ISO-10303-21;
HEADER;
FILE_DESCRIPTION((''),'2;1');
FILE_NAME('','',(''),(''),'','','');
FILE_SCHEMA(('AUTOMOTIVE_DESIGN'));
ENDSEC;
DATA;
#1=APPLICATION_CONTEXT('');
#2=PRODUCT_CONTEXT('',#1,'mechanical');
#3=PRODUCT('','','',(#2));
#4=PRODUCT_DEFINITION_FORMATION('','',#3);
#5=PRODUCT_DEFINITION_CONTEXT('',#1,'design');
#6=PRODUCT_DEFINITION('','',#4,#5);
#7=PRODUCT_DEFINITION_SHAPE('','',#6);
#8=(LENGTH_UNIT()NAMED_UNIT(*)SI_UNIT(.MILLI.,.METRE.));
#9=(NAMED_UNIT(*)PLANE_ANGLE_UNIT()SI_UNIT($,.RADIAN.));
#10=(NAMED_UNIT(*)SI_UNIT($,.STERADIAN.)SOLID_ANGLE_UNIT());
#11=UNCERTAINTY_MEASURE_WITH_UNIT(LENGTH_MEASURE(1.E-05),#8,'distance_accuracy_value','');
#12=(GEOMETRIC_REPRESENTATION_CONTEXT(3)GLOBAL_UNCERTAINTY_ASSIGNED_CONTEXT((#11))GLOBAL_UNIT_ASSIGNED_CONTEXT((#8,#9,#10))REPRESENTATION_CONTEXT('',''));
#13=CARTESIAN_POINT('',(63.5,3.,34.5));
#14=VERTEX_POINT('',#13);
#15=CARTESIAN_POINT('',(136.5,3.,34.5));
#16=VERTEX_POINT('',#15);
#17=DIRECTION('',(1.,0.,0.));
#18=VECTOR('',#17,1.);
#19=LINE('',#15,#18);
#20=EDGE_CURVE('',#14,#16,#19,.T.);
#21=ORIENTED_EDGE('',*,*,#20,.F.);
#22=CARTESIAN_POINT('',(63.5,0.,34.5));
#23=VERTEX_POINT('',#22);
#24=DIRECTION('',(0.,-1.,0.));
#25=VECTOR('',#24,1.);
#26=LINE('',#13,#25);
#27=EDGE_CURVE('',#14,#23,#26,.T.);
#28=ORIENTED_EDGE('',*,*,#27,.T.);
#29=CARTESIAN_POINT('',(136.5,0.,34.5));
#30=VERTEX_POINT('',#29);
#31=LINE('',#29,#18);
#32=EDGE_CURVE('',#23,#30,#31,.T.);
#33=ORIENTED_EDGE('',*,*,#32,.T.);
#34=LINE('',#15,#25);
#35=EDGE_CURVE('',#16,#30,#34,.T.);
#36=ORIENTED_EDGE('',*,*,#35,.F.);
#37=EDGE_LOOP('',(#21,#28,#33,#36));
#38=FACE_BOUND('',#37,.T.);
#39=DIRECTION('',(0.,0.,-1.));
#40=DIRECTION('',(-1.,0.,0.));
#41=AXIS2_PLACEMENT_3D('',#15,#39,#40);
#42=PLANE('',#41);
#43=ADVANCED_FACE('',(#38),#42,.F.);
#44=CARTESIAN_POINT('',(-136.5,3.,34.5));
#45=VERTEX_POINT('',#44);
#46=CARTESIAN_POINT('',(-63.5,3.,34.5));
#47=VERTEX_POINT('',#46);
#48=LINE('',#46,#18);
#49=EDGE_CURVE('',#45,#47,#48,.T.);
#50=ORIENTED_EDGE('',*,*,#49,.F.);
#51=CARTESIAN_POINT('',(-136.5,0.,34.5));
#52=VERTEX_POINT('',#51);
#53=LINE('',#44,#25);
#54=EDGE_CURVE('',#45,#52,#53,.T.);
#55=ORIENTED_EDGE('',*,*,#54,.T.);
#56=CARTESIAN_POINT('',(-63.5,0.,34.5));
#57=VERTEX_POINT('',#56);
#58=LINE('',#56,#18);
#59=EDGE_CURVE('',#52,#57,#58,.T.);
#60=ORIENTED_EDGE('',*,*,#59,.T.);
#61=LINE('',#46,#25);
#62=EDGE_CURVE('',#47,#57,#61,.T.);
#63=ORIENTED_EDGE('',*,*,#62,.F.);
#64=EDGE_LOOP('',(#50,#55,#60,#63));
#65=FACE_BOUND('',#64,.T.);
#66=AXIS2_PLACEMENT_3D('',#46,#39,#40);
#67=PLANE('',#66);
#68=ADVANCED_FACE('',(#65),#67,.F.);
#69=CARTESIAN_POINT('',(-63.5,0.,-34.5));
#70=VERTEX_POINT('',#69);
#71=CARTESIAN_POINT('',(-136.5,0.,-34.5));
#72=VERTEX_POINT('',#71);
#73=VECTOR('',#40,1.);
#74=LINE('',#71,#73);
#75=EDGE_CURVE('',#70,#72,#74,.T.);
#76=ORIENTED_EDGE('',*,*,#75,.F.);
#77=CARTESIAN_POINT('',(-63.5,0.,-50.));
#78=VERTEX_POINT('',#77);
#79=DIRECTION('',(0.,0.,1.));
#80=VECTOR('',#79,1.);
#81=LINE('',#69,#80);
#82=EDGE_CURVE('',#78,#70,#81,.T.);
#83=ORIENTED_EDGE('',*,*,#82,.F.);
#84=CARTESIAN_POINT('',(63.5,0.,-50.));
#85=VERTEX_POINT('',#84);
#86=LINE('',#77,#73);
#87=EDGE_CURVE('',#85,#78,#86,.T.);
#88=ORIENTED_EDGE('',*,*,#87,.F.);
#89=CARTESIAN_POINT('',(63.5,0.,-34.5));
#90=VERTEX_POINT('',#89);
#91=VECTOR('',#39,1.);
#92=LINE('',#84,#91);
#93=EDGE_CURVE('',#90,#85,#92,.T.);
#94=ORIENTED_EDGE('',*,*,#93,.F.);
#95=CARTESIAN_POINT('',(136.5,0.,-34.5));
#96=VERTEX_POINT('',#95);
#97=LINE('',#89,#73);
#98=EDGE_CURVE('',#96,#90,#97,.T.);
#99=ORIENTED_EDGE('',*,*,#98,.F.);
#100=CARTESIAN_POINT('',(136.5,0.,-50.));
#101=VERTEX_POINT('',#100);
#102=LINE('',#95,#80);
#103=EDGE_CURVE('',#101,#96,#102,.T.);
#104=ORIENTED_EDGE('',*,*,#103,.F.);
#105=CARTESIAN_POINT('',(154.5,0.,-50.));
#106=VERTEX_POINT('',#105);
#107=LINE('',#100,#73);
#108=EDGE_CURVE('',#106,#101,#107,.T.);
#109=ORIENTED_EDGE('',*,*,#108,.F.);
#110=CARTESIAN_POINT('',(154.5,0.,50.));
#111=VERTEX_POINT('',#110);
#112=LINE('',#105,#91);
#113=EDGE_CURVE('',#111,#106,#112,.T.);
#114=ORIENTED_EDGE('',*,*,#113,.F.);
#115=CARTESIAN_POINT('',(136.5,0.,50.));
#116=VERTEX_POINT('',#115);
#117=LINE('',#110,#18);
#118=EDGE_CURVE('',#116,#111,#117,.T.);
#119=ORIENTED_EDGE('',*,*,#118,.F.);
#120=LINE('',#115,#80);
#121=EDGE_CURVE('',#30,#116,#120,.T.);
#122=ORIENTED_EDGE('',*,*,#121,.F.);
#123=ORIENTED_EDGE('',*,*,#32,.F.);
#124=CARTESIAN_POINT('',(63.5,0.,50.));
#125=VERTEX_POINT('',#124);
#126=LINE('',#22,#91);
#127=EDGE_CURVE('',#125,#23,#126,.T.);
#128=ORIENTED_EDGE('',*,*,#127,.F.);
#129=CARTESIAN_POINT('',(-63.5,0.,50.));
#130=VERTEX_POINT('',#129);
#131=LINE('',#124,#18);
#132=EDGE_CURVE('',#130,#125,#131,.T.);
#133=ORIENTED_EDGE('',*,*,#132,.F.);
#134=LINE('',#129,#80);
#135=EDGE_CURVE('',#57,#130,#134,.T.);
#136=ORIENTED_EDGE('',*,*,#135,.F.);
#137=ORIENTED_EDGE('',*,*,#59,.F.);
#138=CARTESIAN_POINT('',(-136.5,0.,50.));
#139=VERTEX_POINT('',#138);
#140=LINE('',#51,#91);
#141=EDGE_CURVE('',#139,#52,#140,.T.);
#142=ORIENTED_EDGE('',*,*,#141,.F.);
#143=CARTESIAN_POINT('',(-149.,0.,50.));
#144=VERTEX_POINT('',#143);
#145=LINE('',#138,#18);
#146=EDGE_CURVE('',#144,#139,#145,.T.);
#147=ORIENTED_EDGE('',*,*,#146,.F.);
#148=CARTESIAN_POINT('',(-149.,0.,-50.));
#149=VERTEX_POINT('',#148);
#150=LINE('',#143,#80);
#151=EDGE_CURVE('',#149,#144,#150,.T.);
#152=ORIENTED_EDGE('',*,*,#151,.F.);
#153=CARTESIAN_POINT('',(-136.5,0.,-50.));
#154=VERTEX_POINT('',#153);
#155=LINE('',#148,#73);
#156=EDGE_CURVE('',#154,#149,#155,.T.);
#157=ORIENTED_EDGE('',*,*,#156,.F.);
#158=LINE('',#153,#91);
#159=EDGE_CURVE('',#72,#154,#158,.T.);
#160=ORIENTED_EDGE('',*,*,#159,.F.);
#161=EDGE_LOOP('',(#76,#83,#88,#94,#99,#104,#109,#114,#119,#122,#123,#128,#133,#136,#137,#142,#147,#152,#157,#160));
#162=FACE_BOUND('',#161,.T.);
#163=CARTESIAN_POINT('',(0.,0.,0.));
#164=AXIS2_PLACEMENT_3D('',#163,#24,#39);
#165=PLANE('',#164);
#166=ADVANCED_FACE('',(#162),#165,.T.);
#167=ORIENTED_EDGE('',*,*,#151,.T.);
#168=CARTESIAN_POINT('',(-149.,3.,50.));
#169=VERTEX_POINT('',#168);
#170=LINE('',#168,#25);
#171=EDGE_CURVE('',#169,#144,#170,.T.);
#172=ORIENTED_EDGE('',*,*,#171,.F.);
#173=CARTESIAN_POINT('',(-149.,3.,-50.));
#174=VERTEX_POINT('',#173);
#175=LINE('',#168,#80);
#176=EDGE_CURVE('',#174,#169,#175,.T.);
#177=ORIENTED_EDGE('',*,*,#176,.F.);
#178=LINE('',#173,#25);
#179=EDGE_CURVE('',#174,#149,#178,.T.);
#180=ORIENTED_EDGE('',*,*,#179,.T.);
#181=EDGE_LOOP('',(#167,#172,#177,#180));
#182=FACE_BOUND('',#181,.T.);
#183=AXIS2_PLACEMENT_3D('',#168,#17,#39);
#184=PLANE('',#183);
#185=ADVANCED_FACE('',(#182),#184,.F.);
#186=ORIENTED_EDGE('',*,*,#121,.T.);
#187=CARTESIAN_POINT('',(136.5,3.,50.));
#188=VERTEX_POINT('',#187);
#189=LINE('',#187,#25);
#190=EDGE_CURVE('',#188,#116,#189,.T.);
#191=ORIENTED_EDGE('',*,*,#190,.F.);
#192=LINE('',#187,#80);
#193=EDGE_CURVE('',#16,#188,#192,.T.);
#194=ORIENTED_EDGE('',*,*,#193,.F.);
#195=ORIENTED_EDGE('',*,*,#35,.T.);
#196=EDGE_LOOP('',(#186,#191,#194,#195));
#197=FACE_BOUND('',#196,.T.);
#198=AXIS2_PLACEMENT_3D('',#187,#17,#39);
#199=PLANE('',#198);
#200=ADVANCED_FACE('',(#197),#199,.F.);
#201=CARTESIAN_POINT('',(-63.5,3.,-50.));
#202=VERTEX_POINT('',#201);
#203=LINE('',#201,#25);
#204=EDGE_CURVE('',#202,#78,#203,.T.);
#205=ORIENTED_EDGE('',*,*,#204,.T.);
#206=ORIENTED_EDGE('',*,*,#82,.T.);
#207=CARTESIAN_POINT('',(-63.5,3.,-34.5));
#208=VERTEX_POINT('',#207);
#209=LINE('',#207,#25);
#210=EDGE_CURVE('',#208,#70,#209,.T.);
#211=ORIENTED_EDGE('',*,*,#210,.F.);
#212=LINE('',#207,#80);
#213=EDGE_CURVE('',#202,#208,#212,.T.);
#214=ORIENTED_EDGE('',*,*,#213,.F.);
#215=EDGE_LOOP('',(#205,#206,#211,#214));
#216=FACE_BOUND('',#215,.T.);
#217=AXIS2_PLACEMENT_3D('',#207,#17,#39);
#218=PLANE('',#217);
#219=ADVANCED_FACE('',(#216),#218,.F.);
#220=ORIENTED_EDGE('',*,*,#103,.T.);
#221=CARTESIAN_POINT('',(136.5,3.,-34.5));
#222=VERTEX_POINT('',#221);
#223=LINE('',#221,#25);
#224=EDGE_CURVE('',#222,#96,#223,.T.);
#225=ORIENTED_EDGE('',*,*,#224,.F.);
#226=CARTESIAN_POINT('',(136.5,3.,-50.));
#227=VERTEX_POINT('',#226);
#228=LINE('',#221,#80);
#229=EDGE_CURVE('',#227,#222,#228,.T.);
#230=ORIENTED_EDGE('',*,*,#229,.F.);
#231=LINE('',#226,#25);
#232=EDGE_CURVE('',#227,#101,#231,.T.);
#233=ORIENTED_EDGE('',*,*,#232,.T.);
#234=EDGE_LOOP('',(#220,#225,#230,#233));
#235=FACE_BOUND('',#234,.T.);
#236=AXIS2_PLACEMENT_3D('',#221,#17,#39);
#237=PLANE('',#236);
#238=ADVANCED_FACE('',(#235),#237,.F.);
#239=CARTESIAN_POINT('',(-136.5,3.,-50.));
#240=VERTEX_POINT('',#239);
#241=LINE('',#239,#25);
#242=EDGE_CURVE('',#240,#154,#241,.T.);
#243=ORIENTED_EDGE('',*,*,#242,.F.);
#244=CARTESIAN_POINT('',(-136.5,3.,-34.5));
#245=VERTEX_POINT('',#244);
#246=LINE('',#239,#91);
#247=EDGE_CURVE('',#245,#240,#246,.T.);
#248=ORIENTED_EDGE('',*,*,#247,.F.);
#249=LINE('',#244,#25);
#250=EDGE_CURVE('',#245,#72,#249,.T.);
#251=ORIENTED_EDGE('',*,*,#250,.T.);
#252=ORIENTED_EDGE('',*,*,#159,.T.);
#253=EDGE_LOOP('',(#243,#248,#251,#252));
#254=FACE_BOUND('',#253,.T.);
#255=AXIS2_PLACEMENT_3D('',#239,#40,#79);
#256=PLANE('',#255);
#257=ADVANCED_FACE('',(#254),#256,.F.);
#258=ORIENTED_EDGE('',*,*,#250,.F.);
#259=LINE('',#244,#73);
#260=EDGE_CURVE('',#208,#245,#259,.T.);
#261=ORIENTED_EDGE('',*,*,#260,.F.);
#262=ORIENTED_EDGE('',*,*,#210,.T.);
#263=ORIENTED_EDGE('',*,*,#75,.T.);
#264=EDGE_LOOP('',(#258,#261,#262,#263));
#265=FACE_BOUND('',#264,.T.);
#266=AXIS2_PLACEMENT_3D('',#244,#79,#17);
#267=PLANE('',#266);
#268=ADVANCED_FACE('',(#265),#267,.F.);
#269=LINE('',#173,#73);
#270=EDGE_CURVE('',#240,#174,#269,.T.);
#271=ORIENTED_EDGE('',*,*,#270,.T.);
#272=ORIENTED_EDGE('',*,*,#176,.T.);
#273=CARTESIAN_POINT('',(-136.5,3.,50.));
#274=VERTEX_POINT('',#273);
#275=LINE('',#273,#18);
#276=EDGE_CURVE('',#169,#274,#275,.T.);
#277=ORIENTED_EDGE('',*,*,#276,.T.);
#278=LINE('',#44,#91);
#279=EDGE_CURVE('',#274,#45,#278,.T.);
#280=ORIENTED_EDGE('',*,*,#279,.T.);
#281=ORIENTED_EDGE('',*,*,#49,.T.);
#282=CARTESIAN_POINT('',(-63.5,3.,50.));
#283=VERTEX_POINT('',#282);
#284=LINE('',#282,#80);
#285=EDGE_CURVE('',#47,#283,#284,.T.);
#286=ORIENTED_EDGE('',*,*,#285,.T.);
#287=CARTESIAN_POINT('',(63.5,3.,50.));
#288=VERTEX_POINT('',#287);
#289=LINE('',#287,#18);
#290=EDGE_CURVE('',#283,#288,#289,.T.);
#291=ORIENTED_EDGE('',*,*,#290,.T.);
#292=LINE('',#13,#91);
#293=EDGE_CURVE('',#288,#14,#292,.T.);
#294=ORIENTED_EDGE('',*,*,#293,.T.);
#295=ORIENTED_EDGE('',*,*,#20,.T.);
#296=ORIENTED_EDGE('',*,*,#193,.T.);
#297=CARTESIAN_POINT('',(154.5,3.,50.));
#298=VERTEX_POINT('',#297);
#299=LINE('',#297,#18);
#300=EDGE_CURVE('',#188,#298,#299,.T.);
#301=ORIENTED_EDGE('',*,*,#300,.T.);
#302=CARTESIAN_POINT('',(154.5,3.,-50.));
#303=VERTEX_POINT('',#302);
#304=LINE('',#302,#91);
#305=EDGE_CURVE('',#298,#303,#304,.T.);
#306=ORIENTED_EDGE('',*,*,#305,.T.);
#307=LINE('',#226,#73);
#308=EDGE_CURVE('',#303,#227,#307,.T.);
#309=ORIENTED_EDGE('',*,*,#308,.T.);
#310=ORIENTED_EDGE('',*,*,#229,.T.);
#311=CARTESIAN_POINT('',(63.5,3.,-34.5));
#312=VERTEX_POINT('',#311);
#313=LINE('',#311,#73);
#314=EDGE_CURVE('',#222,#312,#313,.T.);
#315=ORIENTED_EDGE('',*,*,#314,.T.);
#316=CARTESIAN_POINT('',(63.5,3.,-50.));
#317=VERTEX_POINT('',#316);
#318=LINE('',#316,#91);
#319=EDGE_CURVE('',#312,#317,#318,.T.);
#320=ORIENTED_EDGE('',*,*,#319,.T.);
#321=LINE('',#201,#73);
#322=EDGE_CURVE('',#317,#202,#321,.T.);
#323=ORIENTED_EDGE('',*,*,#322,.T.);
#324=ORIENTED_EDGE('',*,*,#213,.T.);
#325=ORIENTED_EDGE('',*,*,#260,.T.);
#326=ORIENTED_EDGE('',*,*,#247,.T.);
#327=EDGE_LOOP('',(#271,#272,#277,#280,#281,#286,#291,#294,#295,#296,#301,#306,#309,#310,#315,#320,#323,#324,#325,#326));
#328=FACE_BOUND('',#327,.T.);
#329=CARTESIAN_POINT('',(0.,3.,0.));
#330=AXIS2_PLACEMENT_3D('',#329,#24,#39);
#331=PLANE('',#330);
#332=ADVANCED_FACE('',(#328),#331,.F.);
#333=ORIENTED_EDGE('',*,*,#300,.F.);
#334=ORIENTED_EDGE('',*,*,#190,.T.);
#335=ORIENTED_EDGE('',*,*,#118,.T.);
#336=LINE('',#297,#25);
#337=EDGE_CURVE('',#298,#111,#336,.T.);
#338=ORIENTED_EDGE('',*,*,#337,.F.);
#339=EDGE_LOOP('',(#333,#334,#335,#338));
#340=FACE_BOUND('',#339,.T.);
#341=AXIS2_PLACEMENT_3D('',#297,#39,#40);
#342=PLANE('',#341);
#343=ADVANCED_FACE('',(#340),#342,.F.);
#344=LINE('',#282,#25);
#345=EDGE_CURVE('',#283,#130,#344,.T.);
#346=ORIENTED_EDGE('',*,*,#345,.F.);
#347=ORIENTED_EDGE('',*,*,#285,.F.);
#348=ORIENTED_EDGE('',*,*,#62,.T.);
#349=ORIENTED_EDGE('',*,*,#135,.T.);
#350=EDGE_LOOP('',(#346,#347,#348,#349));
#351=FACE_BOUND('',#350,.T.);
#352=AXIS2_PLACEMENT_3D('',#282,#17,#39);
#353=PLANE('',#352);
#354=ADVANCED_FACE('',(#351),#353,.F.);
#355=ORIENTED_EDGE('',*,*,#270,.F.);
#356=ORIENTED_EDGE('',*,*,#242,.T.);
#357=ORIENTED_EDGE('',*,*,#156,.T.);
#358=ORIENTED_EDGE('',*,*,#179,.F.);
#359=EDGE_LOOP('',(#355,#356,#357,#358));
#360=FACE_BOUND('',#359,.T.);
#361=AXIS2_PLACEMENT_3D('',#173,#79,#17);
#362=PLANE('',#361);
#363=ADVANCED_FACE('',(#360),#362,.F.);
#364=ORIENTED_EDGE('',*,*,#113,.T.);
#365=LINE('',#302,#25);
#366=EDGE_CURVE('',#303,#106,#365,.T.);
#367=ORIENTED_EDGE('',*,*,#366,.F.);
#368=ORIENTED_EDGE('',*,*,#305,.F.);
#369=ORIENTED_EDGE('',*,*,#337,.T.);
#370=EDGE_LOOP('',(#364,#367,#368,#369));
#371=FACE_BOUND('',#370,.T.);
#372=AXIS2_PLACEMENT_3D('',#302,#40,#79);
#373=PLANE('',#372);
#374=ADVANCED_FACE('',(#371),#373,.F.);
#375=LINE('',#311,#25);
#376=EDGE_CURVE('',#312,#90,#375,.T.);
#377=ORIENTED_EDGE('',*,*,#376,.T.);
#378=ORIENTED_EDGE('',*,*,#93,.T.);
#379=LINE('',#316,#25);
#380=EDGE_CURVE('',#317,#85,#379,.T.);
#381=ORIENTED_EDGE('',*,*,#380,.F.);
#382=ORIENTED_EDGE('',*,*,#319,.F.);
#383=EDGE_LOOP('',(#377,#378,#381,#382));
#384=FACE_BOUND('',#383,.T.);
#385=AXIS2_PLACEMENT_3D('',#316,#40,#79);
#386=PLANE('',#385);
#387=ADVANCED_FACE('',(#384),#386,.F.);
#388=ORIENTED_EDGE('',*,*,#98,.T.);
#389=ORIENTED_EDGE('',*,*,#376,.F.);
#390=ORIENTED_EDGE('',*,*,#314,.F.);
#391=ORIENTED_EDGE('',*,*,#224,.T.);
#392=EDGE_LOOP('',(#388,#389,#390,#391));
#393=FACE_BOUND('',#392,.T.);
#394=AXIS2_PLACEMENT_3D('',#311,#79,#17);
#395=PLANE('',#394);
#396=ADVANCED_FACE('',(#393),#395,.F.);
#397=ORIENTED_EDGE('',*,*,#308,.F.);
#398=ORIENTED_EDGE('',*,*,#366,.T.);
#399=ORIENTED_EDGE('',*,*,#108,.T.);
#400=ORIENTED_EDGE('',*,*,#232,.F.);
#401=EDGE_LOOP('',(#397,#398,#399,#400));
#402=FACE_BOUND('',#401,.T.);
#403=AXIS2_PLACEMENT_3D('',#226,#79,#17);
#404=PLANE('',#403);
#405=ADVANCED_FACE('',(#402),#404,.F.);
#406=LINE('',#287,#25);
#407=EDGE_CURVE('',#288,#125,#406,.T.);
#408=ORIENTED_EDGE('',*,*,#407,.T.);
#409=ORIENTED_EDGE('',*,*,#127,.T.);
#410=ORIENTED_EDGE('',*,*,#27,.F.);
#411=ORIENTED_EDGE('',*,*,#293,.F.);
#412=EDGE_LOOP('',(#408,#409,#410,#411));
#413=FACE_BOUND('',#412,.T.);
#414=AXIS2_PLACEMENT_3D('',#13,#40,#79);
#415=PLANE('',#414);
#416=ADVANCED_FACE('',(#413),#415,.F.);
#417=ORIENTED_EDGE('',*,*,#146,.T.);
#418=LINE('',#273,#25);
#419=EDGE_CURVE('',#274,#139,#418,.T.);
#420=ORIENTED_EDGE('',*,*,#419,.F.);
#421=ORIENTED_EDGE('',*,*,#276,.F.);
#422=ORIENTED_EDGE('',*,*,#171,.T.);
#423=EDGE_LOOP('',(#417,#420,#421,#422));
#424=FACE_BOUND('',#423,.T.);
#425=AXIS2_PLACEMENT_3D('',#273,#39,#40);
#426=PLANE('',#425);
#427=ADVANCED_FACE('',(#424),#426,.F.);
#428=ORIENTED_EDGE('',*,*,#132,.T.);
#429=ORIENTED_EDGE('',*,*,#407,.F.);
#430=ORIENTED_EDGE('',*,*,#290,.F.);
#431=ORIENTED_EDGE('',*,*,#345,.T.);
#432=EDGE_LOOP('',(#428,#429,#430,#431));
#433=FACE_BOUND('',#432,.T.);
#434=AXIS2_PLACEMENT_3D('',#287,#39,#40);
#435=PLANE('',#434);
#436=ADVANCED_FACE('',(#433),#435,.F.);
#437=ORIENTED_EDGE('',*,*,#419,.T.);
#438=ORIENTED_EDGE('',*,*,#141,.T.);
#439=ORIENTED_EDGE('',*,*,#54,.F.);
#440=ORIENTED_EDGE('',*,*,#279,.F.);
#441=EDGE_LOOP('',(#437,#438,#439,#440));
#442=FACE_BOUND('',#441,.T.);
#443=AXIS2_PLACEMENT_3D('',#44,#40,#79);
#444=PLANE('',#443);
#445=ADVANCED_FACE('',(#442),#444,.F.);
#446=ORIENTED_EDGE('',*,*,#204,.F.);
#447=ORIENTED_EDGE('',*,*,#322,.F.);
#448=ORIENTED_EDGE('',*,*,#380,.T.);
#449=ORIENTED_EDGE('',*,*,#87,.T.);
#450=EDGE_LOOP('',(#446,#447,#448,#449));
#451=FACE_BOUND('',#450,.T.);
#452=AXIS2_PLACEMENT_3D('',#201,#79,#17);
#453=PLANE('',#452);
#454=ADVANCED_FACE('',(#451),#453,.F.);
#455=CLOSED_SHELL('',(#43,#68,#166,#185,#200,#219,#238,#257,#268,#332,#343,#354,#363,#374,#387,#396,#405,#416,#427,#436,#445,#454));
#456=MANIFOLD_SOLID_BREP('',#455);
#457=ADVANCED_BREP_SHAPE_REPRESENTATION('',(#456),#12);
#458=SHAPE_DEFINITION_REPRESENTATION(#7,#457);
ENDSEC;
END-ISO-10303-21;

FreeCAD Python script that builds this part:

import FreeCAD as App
import Part
import Sketcher

V = App.Vector

doc = App.newDocument("Part")
body = doc.addObject("PartDesign::Body", "Body")

# Sketch on XZ plane
sketch1 = body.newObject("Sketcher::SketchObject", "Sketch")
sketch1.AttachmentSupport = (doc.getObject("XZ_Plane"), [""])
sketch1.MapMode = "FlatFace"
sketch1.addGeometry(Part.LineSegment(V(-149, -50, 0), V(-149, 50, 0)), False)
sketch1.addGeometry(Part.LineSegment(V(-149, 50, 0), V(-136, 50, 0)), False)
sketch1.addGeometry(Part.LineSegment(V(-136, 50, 0), V(-136, 34, 0)), False)
sketch1.addGeometry(Part.LineSegment(V(-136, 34, 0), V(-64, 34, 0)), False)
sketch1.addGeometry(Part.LineSegment(V(-64, 34, 0), V(-64, 50, 0)), False)
sketch1.addGeometry(Part.LineSegment(V(-64, 50, 0), V(64, 50, 0)), False)
sketch1.addGeometry(Part.LineSegment(V(64, 50, 0), V(64, 34, 0)), False)
sketch1.addGeometry(Part.LineSegment(V(64, 34, 0), V(136, 34, 0)), False)
sketch1.addGeometry(Part.LineSegment(V(136, 34, 0), V(136, 50, 0)), False)
sketch1.addGeometry(Part.LineSegment(V(136, 50, 0), V(154, 50, 0)), False)
sketch1.addGeometry(Part.LineSegment(V(154, 50, 0), V(154, -50, 0)), False)
sketch1.addGeometry(Part.LineSegment(V(154, -50, 0), V(136, -50, 0)), False)
sketch1.addGeometry(Part.LineSegment(V(136, -50, 0), V(136, -34, 0)), False)
sketch1.addGeometry(Part.LineSegment(V(136, -34, 0), V(64, -34, 0)), False)
sketch1.addGeometry(Part.LineSegment(V(64, -34, 0), V(64, -50, 0)), False)
sketch1.addGeometry(Part.LineSegment(V(64, -50, 0), V(-64, -50, 0)), False)
sketch1.addGeometry(Part.LineSegment(V(-64, -50, 0), V(-64, -34, 0)), False)
sketch1.addGeometry(Part.LineSegment(V(-64, -34, 0), V(-136, -34, 0)), False)
sketch1.addGeometry(Part.LineSegment(V(-136, -34, 0), V(-136, -50, 0)), False)
sketch1.addGeometry(Part.LineSegment(V(-136, -50, 0), V(-149, -50, 0)), False)
sketch1.addConstraint(Sketcher.Constraint("Coincident", 0, 2, 1, 1))
sketch1.addConstraint(Sketcher.Constraint("Coincident", 1, 2, 2, 1))
sketch1.addConstraint(Sketcher.Constraint("Coincident", 2, 2, 3, 1))
sketch1.addConstraint(Sketcher.Constraint("Coincident", 3, 2, 4, 1))
sketch1.addConstraint(Sketcher.Constraint("Coincident", 4, 2, 5, 1))
sketch1.addConstraint(Sketcher.Constraint("Coincident", 5, 2, 6, 1))
sketch1.addConstraint(Sketcher.Constraint("Coincident", 6, 2, 7, 1))
sketch1.addConstraint(Sketcher.Constraint("Coincident", 7, 2, 8, 1))
sketch1.addConstraint(Sketcher.Constraint("Coincident", 8, 2, 9, 1))
sketch1.addConstraint(Sketcher.Constraint("Coincident", 9, 2, 10, 1))
sketch1.addConstraint(Sketcher.Constraint("Coincident", 10, 2, 11, 1))
sketch1.addConstraint(Sketcher.Constraint("Coincident", 11, 2, 12, 1))
sketch1.addConstraint(Sketcher.Constraint("Coincident", 12, 2, 13, 1))
sketch1.addConstraint(Sketcher.Constraint("Coincident", 13, 2, 14, 1))
sketch1.addConstraint(Sketcher.Constraint("Coincident", 14, 2, 15, 1))
sketch1.addConstraint(Sketcher.Constraint("Coincident", 15, 2, 16, 1))
sketch1.addConstraint(Sketcher.Constraint("Coincident", 16, 2, 17, 1))
sketch1.addConstraint(Sketcher.Constraint("Coincident", 17, 2, 18, 1))
sketch1.addConstraint(Sketcher.Constraint("Coincident", 18, 2, 19, 1))
sketch1.addConstraint(Sketcher.Constraint("Coincident", 19, 2, 0, 1))
sketch1.addConstraint(Sketcher.Constraint("Vertical", 0))
sketch1.addConstraint(Sketcher.Constraint("Horizontal", 1))
sketch1.addConstraint(Sketcher.Constraint("Vertical", 2))
sketch1.addConstraint(Sketcher.Constraint("Horizontal", 3))
sketch1.addConstraint(Sketcher.Constraint("Vertical", 4))
sketch1.addConstraint(Sketcher.Constraint("Horizontal", 5))
sketch1.addConstraint(Sketcher.Constraint("Vertical", 6))
sketch1.addConstraint(Sketcher.Constraint("Horizontal", 7))
sketch1.addConstraint(Sketcher.Constraint("Vertical", 8))
sketch1.addConstraint(Sketcher.Constraint("Horizontal", 9))
sketch1.addConstraint(Sketcher.Constraint("Vertical", 10))
sketch1.addConstraint(Sketcher.Constraint("Horizontal", 11))
sketch1.addConstraint(Sketcher.Constraint("Vertical", 12))
sketch1.addConstraint(Sketcher.Constraint("Horizontal", 13))
sketch1.addConstraint(Sketcher.Constraint("Vertical", 14))
sketch1.addConstraint(Sketcher.Constraint("Horizontal", 15))
sketch1.addConstraint(Sketcher.Constraint("Vertical", 16))
sketch1.addConstraint(Sketcher.Constraint("Horizontal", 17))
sketch1.addConstraint(Sketcher.Constraint("Vertical", 18))
sketch1.addConstraint(Sketcher.Constraint("Horizontal", 19))
sketch1.addConstraint(Sketcher.Constraint("Symmetric", 1, 2, 11, 2, -1, 1))
sketch1.addConstraint(Sketcher.Constraint("Symmetric", 3, 2, 13, 2, -1, 1))
sketch1.addConstraint(Sketcher.Constraint("Symmetric", 5, 2, 15, 2, -1, 1))
sketch1.addConstraint(Sketcher.Constraint("Symmetric", 7, 2, 17, 2, -1, 1))
sketch1.addConstraint(Sketcher.Constraint("Symmetric", 3, 2, 6, 2, -2))
sketch1.addConstraint(Sketcher.Constraint("Symmetric", 1, 2, 8, 2, -2))
sketch1.addConstraint(Sketcher.Constraint("Horizontal", 1, 2, 4, 2))
sketch1.addConstraint(Sketcher.Constraint("Horizontal", 15, 2, 18, 2))
sketch1.addConstraint(Sketcher.Constraint("DistanceX", 3, 1, 3, 2, 73.0))
sketch1.addConstraint(Sketcher.Constraint("DistanceX", 5, 1, 5, 2, 127.0))
sketch1.addConstraint(Sketcher.Constraint("DistanceX", 9, 1, 9, 2, 18.0))
sketch1.addConstraint(Sketcher.Constraint("DistanceY", 0, 1, 0, 2, 100.0))
sketch1.addConstraint(Sketcher.Constraint("DistanceX", 1, 1, 1, 2, 12.5))
sketch1.addConstraint(Sketcher.Constraint("DistanceY", 2, 2, 2, 1, 15.5))
pad1 = body.newObject("PartDesign::Pad", "Pad")
pad1.Profile = sketch1
pad1.Length = 3
pad1.Reversed = True

doc.recompute()
